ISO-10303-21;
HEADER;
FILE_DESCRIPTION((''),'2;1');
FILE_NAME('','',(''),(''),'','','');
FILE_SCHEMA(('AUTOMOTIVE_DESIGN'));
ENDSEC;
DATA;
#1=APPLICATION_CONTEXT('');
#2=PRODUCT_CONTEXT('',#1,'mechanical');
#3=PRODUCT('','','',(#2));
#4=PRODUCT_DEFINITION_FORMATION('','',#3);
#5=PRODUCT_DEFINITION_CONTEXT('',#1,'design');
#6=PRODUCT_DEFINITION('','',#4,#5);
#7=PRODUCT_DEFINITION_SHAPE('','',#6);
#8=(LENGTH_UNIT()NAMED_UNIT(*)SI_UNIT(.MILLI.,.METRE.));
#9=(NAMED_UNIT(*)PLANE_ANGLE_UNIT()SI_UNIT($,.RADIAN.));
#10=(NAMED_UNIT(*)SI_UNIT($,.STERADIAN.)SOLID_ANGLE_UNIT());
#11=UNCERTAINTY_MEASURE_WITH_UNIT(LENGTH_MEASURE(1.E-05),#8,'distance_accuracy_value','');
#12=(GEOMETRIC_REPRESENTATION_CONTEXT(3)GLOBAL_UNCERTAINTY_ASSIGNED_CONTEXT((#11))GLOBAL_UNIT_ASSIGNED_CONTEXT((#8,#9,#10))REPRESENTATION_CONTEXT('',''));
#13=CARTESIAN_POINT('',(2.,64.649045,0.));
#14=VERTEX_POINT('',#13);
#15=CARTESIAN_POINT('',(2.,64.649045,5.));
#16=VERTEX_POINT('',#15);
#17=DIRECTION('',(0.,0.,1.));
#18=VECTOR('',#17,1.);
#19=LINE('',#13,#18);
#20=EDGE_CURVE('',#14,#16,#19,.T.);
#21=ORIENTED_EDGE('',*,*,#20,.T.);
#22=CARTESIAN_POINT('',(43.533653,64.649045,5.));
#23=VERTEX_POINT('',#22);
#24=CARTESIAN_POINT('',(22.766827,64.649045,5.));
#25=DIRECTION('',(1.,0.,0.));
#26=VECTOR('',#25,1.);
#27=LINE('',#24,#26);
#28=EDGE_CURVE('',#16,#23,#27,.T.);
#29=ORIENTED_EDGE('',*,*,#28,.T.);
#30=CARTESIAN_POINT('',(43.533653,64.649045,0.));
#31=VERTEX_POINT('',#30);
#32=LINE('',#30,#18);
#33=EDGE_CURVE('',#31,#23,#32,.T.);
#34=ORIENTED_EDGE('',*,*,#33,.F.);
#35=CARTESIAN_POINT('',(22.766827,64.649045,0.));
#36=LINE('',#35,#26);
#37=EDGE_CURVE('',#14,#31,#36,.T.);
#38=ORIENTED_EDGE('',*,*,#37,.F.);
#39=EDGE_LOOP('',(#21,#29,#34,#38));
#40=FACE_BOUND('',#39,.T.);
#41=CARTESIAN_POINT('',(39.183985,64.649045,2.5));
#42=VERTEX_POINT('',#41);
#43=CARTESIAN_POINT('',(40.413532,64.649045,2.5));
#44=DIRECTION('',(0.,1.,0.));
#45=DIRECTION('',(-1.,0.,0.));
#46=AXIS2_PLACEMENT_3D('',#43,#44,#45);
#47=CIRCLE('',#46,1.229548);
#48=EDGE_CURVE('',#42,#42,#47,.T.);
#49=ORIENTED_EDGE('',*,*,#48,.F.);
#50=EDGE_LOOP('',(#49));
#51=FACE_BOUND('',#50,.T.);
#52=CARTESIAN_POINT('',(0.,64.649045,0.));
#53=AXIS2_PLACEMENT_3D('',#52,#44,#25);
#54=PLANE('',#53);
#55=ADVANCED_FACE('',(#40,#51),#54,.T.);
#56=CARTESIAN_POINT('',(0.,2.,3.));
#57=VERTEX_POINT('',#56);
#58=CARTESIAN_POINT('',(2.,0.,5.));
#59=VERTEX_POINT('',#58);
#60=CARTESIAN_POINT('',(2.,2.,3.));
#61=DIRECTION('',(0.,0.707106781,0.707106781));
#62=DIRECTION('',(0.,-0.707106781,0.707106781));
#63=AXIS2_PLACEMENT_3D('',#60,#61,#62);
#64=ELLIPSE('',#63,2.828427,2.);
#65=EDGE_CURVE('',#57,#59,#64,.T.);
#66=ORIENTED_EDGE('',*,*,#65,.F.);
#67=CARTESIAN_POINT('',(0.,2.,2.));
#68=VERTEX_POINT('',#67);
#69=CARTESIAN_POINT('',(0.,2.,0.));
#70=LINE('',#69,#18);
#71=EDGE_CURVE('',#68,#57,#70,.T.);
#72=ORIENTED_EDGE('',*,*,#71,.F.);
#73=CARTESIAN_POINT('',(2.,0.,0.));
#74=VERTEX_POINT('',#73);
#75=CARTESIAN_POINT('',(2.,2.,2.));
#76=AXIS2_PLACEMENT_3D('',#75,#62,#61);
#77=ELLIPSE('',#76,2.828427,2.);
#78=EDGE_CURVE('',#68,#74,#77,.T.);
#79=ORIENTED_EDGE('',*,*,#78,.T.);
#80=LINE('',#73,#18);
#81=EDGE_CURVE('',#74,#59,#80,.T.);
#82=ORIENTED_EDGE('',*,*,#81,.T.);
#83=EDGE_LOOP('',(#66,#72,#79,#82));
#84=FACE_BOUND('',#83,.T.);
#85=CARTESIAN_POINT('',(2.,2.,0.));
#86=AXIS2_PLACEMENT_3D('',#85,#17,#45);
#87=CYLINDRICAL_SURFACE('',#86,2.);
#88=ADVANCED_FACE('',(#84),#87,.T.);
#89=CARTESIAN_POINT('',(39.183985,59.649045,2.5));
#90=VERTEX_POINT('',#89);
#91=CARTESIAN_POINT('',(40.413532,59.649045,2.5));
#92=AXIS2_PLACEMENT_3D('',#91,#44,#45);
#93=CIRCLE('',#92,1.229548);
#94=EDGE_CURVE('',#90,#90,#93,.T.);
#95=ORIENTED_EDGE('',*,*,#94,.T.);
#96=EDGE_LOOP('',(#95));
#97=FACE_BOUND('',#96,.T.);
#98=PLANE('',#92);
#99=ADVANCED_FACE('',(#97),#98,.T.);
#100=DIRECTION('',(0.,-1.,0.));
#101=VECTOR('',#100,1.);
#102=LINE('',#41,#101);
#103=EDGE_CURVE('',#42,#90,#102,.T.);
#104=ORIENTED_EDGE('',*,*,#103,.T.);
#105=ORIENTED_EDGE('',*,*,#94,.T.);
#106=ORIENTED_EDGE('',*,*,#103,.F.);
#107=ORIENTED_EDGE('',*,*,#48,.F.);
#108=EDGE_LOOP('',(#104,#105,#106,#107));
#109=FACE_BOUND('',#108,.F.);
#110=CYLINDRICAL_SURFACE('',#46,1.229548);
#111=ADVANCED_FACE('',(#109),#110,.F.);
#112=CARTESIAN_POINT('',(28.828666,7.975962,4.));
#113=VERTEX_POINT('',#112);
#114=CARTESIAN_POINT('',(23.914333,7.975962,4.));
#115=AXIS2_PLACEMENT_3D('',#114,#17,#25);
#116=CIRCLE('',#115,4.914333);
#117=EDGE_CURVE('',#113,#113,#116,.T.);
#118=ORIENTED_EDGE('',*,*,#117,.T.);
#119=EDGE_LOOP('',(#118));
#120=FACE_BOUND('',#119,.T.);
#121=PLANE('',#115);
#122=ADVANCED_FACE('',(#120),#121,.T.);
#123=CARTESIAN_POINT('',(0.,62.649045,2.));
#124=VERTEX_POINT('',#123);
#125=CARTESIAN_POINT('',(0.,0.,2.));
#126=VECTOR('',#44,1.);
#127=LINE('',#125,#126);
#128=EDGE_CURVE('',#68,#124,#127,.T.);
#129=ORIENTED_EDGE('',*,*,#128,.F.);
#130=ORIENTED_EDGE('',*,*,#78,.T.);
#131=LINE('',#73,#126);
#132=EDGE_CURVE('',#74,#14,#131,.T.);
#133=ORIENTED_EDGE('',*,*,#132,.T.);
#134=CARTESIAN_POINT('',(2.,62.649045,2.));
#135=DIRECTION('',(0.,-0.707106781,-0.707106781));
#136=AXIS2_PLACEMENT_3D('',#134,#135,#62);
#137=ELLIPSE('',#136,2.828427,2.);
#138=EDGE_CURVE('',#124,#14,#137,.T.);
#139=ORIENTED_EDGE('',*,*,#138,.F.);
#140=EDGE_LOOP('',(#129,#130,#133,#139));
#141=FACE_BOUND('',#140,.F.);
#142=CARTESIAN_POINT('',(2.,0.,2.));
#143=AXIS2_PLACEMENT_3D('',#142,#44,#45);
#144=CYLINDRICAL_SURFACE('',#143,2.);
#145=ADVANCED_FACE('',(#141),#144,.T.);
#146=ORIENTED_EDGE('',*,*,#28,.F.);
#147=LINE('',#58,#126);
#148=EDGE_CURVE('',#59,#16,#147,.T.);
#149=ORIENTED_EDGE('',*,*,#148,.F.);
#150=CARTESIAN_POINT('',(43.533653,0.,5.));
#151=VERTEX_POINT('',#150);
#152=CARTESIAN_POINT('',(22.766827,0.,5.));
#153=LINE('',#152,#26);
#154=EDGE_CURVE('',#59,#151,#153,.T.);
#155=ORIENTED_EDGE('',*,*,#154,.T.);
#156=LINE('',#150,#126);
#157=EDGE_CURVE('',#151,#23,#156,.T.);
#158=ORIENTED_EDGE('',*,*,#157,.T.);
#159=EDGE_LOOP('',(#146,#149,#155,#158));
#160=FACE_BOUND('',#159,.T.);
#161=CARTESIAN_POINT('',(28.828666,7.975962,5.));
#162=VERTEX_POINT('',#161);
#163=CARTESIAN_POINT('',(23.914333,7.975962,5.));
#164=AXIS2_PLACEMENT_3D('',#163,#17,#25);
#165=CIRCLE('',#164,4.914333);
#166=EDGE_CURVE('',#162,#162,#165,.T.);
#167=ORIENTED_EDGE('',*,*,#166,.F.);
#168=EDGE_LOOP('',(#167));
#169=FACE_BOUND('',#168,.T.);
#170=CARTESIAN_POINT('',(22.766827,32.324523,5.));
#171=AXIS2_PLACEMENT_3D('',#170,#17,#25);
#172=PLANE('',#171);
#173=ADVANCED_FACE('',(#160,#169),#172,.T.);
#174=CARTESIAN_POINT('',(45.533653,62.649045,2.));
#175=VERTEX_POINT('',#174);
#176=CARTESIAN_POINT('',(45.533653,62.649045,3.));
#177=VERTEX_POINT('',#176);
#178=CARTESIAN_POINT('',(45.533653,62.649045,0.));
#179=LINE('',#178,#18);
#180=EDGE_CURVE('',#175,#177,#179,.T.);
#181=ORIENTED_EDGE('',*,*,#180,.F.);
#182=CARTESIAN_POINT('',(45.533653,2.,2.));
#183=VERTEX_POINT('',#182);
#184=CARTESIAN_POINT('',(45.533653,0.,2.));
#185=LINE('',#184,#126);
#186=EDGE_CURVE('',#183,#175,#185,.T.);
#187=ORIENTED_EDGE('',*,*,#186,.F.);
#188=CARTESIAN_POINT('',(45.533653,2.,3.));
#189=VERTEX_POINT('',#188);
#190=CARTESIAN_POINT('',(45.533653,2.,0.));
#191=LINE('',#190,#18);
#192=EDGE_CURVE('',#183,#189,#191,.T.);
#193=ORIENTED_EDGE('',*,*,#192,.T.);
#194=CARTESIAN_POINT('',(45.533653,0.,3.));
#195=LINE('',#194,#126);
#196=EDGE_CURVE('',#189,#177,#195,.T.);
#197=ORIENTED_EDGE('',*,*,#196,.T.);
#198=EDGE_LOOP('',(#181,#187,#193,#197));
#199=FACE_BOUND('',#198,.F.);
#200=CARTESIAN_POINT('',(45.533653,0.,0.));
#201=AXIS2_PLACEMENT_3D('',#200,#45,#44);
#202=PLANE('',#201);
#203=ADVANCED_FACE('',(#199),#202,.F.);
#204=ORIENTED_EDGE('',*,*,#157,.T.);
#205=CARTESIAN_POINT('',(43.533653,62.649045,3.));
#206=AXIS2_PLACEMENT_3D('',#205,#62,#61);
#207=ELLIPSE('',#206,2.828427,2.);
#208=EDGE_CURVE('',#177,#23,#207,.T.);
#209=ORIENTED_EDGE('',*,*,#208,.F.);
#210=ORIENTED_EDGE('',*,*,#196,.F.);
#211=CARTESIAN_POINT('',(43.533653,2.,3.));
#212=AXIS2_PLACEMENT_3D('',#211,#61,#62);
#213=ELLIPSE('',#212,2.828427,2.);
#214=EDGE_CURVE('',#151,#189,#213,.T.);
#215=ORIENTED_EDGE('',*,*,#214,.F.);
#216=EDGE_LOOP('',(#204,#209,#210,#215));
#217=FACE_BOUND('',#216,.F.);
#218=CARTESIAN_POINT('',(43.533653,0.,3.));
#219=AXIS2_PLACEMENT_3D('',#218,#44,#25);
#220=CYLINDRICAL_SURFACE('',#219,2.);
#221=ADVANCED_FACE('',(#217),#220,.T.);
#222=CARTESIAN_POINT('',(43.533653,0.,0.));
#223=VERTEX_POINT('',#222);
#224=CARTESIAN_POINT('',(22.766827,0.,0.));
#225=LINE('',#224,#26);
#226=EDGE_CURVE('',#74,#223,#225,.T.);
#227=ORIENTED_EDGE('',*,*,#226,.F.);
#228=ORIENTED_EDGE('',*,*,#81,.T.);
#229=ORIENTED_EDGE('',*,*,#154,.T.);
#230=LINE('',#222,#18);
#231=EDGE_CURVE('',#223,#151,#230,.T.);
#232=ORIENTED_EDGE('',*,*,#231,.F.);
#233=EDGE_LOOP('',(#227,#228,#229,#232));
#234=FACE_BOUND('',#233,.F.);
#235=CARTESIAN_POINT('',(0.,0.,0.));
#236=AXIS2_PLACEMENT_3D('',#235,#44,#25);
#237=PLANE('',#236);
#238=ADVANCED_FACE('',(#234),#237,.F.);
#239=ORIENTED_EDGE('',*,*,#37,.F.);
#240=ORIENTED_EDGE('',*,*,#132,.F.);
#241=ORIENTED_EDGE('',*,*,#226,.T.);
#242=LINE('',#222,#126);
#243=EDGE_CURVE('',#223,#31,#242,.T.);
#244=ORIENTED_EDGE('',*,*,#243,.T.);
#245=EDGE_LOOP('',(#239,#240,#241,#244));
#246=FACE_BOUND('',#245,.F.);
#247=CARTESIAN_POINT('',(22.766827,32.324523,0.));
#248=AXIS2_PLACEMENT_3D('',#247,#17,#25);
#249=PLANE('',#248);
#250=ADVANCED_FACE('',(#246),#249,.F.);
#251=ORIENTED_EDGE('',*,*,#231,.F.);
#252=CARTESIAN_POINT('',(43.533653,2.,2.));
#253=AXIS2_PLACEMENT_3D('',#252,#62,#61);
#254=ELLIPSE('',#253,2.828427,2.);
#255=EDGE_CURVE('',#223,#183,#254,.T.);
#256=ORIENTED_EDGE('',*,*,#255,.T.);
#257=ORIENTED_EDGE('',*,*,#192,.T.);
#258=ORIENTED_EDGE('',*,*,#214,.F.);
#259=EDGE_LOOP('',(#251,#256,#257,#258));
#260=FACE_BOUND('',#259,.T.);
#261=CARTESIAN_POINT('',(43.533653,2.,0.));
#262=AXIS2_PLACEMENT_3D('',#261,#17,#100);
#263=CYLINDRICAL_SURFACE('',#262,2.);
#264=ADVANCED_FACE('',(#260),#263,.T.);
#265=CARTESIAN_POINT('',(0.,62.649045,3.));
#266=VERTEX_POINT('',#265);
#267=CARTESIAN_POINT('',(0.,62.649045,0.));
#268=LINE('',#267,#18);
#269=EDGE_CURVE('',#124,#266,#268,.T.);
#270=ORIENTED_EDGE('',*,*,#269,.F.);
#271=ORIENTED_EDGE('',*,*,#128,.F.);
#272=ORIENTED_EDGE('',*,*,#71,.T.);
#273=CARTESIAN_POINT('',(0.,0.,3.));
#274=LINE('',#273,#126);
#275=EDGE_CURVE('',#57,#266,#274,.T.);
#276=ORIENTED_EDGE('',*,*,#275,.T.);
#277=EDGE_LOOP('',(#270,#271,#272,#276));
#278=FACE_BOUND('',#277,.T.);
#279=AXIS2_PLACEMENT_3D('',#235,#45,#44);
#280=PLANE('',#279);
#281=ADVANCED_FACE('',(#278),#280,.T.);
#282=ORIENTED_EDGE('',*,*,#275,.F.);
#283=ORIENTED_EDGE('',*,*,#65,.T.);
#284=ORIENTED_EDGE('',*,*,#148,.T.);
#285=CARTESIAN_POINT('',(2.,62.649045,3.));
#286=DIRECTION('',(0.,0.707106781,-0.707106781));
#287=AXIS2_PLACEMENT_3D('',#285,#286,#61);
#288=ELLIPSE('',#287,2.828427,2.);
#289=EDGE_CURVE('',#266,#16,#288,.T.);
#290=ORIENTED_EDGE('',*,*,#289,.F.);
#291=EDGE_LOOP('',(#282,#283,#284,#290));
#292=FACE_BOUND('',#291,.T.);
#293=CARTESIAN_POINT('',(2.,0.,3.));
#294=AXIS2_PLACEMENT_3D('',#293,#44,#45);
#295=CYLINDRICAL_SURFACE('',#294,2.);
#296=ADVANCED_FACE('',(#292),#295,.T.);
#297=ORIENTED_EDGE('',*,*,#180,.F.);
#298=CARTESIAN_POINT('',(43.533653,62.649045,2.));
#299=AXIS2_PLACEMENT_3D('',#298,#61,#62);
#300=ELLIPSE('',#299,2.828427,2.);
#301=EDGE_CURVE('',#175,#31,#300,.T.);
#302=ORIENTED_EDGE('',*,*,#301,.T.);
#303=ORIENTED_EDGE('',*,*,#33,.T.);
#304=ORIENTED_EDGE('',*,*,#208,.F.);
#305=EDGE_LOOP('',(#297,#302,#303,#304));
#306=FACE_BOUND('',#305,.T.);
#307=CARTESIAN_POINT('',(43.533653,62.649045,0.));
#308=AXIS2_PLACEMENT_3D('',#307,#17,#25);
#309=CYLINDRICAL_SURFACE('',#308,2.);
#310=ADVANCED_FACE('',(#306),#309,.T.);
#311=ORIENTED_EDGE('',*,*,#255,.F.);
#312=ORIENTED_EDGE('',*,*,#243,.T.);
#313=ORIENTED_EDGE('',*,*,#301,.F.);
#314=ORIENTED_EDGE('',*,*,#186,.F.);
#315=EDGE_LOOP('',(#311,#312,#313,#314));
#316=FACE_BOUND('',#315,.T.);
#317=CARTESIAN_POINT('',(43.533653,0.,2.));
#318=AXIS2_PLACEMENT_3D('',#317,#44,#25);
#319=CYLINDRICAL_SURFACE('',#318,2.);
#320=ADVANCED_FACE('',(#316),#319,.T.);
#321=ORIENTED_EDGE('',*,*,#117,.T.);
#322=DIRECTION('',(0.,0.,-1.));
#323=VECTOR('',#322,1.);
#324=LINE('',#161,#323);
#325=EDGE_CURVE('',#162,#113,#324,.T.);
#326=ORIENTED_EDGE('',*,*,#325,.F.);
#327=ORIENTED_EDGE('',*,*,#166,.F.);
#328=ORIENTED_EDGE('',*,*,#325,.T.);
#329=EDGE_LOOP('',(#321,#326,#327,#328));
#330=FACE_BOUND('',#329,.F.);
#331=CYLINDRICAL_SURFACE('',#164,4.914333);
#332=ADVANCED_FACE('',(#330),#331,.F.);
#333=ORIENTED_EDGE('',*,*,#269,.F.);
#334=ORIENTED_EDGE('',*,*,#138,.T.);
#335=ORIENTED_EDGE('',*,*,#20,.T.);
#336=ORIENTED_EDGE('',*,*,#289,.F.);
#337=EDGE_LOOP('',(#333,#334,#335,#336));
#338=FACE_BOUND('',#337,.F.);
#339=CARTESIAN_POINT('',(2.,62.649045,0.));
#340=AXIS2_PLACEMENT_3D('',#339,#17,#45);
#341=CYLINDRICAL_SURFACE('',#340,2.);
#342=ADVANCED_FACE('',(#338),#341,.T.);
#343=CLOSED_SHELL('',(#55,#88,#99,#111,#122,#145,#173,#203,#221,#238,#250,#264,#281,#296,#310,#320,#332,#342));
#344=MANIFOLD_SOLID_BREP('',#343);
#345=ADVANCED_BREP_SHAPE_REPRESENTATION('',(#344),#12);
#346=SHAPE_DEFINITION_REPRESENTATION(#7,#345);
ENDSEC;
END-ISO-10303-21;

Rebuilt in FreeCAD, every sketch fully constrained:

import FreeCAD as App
import Part
import Sketcher
from FreeCAD import Vector
Q = App.Units.Quantity


def edges_at(feature, points):
    """Names of the edges that pass closest to the given points."""
    edges = feature.Shape.Edges
    near = lambda p: min(range(len(edges)), key=lambda i: edges[i].distToShape(Part.Vertex(*p))[0])
    return sorted({f"Edge{near(p) + 1}" for p in points})

doc = App.newDocument("Part")
body = doc.addObject("PartDesign::Body", "Body")

# Sketch on XY plane
sketch1 = body.newObject("Sketcher::SketchObject", "Sketch")
sketch1.AttachmentSupport = (doc.getObject("XY_Plane"), [""])
sketch1.MapMode = "FlatFace"
sketch1.addGeometry([
    Part.LineSegment(Vector(0, 64.649045, 0), Vector(0, 0, 0)),
    Part.LineSegment(Vector(0, 0, 0), Vector(45.533653, 0, 0)),
    Part.LineSegment(Vector(45.533653, 0, 0), Vector(45.533653, 64.649045, 0)),
    Part.LineSegment(Vector(45.533653, 64.649045, 0), Vector(0, 64.649045, 0)),
], False)
sketch1.addConstraint([
    Sketcher.Constraint("Coincident", 0, 2, 1, 1),
    Sketcher.Constraint("Coincident", 1, 2, 2, 1),
    Sketcher.Constraint("Coincident", 2, 2, 3, 1),
    Sketcher.Constraint("Coincident", 3, 2, 0, 1),
    Sketcher.Constraint("Vertical", 0),
    Sketcher.Constraint("Horizontal", 1),
    Sketcher.Constraint("Vertical", 2),
    Sketcher.Constraint("Horizontal", 3),
    Sketcher.Constraint("Coincident", 0, 2, -1, 1),
    Sketcher.Constraint("DistanceX", 1, 1, 1, 2, Q("45.533653 mm")),
    Sketcher.Constraint("DistanceY", 0, 2, 0, 1, Q("64.649045 mm")),
])
pad1 = body.newObject("PartDesign::Pad", "Pad")
pad1.Profile = sketch1
pad1.Length = 5
doc.recompute()

fillet = body.newObject("PartDesign::Fillet", "Fillet")
fillet.Base = (pad1, edges_at(pad1, [
    (0, 64.649, 2.5),
    (0, 0, 2.5),
    (0, 32.325, 0),
    (0, 32.325, 5),
    (45.534, 0, 2.5),
    (45.534, 64.649, 2.5),
    (45.534, 32.325, 0),
    (45.534, 32.325, 5),
]))
fillet.Radius = 2

# Sketch on XY plane
sketch2 = body.newObject("Sketcher::SketchObject", "Sketch001")
sketch2.AttachmentSupport = (doc.getObject("XY_Plane"), [""])
sketch2.MapMode = "FlatFace"
sketch2.AttachmentOffset = App.Placement(Vector(0, 0, 5), App.Rotation())
sketch2.addGeometry(Part.Circle(Vector(23.914333, 7.975962, 0), Vector(0, 0, 1), 4.914333), False)
sketch2.addConstraint([
    Sketcher.Constraint("Diameter", 0, Q("9.828666 mm")),
    Sketcher.Constraint("DistanceX", -1, 1, 0, 3, Q("23.914333 mm")),
    Sketcher.Constraint("DistanceY", -1, 1, 0, 3, Q("7.975962 mm")),
])
pocket1 = body.newObject("PartDesign::Pocket", "Pocket")
pocket1.Profile = sketch2
pocket1.Length = 1

# Sketch on XZ plane
sketch3 = body.newObject("Sketcher::SketchObject", "Sketch002")
sketch3.AttachmentSupport = (doc.getObject("XZ_Plane"), [""])
sketch3.MapMode = "FlatFace"
sketch3.AttachmentOffset = App.Placement(Vector(0, 0, -64.649045), App.Rotation())
sketch3.addGeometry(Part.Circle(Vector(40.413532, 2.5, 0), Vector(0, 0, 1), 1.229548), False)
sketch3.addConstraint([
    Sketcher.Constraint("DistanceY", -1, 1, 0, 3, Q("2.5 mm")),
    Sketcher.Constraint("Diameter", 0, Q("2.459095 mm")),
    Sketcher.Constraint("DistanceX", -1, 1, 0, 3, Q("40.413532 mm")),
])
pocket2 = body.newObject("PartDesign::Pocket", "Pocket001")
pocket2.Profile = sketch3
pocket2.Length = 5
pocket2.Reversed = True

doc.recompute()
